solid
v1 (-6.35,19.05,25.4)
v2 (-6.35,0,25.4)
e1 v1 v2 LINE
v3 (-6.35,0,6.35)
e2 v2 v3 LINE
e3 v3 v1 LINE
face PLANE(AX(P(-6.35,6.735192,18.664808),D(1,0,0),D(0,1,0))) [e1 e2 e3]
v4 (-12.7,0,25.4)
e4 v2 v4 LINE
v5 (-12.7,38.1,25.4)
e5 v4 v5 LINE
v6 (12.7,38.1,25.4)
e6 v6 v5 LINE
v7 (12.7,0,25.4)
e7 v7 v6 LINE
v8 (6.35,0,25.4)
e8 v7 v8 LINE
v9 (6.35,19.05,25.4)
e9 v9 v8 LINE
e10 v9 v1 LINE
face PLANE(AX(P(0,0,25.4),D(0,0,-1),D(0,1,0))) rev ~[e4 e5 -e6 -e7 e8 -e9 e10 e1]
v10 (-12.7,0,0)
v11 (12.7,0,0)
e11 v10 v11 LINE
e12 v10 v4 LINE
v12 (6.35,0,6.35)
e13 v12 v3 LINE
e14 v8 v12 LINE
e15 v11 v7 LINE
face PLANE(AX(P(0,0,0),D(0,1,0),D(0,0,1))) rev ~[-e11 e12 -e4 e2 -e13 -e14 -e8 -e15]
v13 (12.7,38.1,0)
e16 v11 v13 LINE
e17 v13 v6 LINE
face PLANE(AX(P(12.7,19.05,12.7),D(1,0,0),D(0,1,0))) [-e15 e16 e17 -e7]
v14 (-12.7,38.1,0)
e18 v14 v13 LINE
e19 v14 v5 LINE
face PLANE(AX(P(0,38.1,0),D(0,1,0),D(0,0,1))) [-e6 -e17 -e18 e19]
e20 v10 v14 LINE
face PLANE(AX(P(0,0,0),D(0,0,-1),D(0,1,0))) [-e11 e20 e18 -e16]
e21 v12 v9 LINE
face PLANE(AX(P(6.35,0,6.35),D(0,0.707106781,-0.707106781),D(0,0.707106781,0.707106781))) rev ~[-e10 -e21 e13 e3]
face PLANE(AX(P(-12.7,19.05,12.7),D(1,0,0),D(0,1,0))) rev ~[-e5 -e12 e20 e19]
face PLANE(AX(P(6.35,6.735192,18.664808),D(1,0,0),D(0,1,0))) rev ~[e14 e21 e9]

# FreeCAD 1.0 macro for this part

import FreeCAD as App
import Part
import Sketcher
from FreeCAD import Vector
Q = App.Units.Quantity


def add_polygon(sketch, points):
    """Adds a closed chain of lines whose ends are joined by coincident constraints."""
    first, n = sketch.GeometryCount, len(points)
    for a, b in zip(points, points[1:] + points[:1]):
        sketch.addGeometry(Part.LineSegment(App.Vector(*a, 0), App.Vector(*b, 0)), False)
    for i in range(n):
        sketch.addConstraint(Sketcher.Constraint("Coincident", first + i, 2, first + (i + 1) % n, 1))

doc = App.newDocument("Part")
params = doc.addObject("Spreadsheet::Sheet", "Params")
for row, (alias, value) in enumerate([
    ("sketch1_height", "1 in"),
    ("sketch1_width", "1.5 in"),
    ("pad1_length", "1 in"),
    ("sketch2_width", "0.75 in"),
    ("pocket1_length", "0.5 in"),
], start=1):
    params.set(f"A{row}", alias)
    params.set(f"B{row}", "=" + value)
    params.setAlias(f"B{row}", alias)

body = doc.addObject("PartDesign::Body", "Body")

# Sketch on YZ plane
sketch1 = body.newObject("Sketcher::SketchObject", "Sketch")
sketch1.AttachmentSupport = (doc.getObject("YZ_Plane"), [""])
sketch1.MapMode = "FlatFace"
add_polygon(sketch1, [(0, 25), (0, 0), (38, 0), (38, 25)])  # lines 0-3
sketch1.addConstraint(Sketcher.Constraint("Vertical", 0))
sketch1.addConstraint(Sketcher.Constraint("Horizontal", 1))
sketch1.addConstraint(Sketcher.Constraint("Vertical", 2))
sketch1.addConstraint(Sketcher.Constraint("Horizontal", 3))
sketch1.addConstraint(Sketcher.Constraint("Coincident", 0, 2, -1, 1))
sketch1.addConstraint(Sketcher.Constraint("DistanceY", 0, 2, 0, 1, Q("1 in")))
sketch1.addConstraint(Sketcher.Constraint("DistanceX", 1, 1, 1, 2, Q("1.5 in")))
sketch1.setExpression("Constraints[9]", "Params.sketch1_height")
sketch1.setExpression("Constraints[10]", "Params.sketch1_width")
pad1 = body.newObject("PartDesign::Pad", "Pad")
pad1.Profile = sketch1
pad1.setExpression("Length", "Params.pad1_length")
pad1.Midplane = True

# Sketch on YZ plane
sketch2 = body.newObject("Sketcher::SketchObject", "Sketch001")
sketch2.AttachmentSupport = (doc.getObject("YZ_Plane"), [""])
sketch2.MapMode = "FlatFace"
sketch2.AttachmentOffset = App.Placement(Vector(0, 0, 0.25 * 25.4), App.Rotation())
add_polygon(sketch2, [(0, 25), (0, 6), (19, 25)])  # lines 0-2
sketch2.addConstraint(Sketcher.Constraint("Vertical", 0))
sketch2.addConstraint(Sketcher.Constraint("Horizontal", 2))
sketch2.addConstraint(Sketcher.Constraint("PointOnObject", 0, 2, -2))
sketch2.addConstraint(Sketcher.Constraint("Equal", 2, 0))
sketch2.addConstraint(Sketcher.Constraint("DistanceY", -1, 1, 1, 2, Q("1 in")))
sketch2.addConstraint(Sketcher.Constraint("DistanceX", 2, 2, 2, 1, Q("0.75 in")))
sketch2.setExpression("Constraints[8]", "Params.sketch2_width")
pocket1 = body.newObject("PartDesign::Pocket", "Pocket")
pocket1.Profile = sketch2
pocket1.setExpression("Length", "Params.pocket1_length")

doc.recompute()
